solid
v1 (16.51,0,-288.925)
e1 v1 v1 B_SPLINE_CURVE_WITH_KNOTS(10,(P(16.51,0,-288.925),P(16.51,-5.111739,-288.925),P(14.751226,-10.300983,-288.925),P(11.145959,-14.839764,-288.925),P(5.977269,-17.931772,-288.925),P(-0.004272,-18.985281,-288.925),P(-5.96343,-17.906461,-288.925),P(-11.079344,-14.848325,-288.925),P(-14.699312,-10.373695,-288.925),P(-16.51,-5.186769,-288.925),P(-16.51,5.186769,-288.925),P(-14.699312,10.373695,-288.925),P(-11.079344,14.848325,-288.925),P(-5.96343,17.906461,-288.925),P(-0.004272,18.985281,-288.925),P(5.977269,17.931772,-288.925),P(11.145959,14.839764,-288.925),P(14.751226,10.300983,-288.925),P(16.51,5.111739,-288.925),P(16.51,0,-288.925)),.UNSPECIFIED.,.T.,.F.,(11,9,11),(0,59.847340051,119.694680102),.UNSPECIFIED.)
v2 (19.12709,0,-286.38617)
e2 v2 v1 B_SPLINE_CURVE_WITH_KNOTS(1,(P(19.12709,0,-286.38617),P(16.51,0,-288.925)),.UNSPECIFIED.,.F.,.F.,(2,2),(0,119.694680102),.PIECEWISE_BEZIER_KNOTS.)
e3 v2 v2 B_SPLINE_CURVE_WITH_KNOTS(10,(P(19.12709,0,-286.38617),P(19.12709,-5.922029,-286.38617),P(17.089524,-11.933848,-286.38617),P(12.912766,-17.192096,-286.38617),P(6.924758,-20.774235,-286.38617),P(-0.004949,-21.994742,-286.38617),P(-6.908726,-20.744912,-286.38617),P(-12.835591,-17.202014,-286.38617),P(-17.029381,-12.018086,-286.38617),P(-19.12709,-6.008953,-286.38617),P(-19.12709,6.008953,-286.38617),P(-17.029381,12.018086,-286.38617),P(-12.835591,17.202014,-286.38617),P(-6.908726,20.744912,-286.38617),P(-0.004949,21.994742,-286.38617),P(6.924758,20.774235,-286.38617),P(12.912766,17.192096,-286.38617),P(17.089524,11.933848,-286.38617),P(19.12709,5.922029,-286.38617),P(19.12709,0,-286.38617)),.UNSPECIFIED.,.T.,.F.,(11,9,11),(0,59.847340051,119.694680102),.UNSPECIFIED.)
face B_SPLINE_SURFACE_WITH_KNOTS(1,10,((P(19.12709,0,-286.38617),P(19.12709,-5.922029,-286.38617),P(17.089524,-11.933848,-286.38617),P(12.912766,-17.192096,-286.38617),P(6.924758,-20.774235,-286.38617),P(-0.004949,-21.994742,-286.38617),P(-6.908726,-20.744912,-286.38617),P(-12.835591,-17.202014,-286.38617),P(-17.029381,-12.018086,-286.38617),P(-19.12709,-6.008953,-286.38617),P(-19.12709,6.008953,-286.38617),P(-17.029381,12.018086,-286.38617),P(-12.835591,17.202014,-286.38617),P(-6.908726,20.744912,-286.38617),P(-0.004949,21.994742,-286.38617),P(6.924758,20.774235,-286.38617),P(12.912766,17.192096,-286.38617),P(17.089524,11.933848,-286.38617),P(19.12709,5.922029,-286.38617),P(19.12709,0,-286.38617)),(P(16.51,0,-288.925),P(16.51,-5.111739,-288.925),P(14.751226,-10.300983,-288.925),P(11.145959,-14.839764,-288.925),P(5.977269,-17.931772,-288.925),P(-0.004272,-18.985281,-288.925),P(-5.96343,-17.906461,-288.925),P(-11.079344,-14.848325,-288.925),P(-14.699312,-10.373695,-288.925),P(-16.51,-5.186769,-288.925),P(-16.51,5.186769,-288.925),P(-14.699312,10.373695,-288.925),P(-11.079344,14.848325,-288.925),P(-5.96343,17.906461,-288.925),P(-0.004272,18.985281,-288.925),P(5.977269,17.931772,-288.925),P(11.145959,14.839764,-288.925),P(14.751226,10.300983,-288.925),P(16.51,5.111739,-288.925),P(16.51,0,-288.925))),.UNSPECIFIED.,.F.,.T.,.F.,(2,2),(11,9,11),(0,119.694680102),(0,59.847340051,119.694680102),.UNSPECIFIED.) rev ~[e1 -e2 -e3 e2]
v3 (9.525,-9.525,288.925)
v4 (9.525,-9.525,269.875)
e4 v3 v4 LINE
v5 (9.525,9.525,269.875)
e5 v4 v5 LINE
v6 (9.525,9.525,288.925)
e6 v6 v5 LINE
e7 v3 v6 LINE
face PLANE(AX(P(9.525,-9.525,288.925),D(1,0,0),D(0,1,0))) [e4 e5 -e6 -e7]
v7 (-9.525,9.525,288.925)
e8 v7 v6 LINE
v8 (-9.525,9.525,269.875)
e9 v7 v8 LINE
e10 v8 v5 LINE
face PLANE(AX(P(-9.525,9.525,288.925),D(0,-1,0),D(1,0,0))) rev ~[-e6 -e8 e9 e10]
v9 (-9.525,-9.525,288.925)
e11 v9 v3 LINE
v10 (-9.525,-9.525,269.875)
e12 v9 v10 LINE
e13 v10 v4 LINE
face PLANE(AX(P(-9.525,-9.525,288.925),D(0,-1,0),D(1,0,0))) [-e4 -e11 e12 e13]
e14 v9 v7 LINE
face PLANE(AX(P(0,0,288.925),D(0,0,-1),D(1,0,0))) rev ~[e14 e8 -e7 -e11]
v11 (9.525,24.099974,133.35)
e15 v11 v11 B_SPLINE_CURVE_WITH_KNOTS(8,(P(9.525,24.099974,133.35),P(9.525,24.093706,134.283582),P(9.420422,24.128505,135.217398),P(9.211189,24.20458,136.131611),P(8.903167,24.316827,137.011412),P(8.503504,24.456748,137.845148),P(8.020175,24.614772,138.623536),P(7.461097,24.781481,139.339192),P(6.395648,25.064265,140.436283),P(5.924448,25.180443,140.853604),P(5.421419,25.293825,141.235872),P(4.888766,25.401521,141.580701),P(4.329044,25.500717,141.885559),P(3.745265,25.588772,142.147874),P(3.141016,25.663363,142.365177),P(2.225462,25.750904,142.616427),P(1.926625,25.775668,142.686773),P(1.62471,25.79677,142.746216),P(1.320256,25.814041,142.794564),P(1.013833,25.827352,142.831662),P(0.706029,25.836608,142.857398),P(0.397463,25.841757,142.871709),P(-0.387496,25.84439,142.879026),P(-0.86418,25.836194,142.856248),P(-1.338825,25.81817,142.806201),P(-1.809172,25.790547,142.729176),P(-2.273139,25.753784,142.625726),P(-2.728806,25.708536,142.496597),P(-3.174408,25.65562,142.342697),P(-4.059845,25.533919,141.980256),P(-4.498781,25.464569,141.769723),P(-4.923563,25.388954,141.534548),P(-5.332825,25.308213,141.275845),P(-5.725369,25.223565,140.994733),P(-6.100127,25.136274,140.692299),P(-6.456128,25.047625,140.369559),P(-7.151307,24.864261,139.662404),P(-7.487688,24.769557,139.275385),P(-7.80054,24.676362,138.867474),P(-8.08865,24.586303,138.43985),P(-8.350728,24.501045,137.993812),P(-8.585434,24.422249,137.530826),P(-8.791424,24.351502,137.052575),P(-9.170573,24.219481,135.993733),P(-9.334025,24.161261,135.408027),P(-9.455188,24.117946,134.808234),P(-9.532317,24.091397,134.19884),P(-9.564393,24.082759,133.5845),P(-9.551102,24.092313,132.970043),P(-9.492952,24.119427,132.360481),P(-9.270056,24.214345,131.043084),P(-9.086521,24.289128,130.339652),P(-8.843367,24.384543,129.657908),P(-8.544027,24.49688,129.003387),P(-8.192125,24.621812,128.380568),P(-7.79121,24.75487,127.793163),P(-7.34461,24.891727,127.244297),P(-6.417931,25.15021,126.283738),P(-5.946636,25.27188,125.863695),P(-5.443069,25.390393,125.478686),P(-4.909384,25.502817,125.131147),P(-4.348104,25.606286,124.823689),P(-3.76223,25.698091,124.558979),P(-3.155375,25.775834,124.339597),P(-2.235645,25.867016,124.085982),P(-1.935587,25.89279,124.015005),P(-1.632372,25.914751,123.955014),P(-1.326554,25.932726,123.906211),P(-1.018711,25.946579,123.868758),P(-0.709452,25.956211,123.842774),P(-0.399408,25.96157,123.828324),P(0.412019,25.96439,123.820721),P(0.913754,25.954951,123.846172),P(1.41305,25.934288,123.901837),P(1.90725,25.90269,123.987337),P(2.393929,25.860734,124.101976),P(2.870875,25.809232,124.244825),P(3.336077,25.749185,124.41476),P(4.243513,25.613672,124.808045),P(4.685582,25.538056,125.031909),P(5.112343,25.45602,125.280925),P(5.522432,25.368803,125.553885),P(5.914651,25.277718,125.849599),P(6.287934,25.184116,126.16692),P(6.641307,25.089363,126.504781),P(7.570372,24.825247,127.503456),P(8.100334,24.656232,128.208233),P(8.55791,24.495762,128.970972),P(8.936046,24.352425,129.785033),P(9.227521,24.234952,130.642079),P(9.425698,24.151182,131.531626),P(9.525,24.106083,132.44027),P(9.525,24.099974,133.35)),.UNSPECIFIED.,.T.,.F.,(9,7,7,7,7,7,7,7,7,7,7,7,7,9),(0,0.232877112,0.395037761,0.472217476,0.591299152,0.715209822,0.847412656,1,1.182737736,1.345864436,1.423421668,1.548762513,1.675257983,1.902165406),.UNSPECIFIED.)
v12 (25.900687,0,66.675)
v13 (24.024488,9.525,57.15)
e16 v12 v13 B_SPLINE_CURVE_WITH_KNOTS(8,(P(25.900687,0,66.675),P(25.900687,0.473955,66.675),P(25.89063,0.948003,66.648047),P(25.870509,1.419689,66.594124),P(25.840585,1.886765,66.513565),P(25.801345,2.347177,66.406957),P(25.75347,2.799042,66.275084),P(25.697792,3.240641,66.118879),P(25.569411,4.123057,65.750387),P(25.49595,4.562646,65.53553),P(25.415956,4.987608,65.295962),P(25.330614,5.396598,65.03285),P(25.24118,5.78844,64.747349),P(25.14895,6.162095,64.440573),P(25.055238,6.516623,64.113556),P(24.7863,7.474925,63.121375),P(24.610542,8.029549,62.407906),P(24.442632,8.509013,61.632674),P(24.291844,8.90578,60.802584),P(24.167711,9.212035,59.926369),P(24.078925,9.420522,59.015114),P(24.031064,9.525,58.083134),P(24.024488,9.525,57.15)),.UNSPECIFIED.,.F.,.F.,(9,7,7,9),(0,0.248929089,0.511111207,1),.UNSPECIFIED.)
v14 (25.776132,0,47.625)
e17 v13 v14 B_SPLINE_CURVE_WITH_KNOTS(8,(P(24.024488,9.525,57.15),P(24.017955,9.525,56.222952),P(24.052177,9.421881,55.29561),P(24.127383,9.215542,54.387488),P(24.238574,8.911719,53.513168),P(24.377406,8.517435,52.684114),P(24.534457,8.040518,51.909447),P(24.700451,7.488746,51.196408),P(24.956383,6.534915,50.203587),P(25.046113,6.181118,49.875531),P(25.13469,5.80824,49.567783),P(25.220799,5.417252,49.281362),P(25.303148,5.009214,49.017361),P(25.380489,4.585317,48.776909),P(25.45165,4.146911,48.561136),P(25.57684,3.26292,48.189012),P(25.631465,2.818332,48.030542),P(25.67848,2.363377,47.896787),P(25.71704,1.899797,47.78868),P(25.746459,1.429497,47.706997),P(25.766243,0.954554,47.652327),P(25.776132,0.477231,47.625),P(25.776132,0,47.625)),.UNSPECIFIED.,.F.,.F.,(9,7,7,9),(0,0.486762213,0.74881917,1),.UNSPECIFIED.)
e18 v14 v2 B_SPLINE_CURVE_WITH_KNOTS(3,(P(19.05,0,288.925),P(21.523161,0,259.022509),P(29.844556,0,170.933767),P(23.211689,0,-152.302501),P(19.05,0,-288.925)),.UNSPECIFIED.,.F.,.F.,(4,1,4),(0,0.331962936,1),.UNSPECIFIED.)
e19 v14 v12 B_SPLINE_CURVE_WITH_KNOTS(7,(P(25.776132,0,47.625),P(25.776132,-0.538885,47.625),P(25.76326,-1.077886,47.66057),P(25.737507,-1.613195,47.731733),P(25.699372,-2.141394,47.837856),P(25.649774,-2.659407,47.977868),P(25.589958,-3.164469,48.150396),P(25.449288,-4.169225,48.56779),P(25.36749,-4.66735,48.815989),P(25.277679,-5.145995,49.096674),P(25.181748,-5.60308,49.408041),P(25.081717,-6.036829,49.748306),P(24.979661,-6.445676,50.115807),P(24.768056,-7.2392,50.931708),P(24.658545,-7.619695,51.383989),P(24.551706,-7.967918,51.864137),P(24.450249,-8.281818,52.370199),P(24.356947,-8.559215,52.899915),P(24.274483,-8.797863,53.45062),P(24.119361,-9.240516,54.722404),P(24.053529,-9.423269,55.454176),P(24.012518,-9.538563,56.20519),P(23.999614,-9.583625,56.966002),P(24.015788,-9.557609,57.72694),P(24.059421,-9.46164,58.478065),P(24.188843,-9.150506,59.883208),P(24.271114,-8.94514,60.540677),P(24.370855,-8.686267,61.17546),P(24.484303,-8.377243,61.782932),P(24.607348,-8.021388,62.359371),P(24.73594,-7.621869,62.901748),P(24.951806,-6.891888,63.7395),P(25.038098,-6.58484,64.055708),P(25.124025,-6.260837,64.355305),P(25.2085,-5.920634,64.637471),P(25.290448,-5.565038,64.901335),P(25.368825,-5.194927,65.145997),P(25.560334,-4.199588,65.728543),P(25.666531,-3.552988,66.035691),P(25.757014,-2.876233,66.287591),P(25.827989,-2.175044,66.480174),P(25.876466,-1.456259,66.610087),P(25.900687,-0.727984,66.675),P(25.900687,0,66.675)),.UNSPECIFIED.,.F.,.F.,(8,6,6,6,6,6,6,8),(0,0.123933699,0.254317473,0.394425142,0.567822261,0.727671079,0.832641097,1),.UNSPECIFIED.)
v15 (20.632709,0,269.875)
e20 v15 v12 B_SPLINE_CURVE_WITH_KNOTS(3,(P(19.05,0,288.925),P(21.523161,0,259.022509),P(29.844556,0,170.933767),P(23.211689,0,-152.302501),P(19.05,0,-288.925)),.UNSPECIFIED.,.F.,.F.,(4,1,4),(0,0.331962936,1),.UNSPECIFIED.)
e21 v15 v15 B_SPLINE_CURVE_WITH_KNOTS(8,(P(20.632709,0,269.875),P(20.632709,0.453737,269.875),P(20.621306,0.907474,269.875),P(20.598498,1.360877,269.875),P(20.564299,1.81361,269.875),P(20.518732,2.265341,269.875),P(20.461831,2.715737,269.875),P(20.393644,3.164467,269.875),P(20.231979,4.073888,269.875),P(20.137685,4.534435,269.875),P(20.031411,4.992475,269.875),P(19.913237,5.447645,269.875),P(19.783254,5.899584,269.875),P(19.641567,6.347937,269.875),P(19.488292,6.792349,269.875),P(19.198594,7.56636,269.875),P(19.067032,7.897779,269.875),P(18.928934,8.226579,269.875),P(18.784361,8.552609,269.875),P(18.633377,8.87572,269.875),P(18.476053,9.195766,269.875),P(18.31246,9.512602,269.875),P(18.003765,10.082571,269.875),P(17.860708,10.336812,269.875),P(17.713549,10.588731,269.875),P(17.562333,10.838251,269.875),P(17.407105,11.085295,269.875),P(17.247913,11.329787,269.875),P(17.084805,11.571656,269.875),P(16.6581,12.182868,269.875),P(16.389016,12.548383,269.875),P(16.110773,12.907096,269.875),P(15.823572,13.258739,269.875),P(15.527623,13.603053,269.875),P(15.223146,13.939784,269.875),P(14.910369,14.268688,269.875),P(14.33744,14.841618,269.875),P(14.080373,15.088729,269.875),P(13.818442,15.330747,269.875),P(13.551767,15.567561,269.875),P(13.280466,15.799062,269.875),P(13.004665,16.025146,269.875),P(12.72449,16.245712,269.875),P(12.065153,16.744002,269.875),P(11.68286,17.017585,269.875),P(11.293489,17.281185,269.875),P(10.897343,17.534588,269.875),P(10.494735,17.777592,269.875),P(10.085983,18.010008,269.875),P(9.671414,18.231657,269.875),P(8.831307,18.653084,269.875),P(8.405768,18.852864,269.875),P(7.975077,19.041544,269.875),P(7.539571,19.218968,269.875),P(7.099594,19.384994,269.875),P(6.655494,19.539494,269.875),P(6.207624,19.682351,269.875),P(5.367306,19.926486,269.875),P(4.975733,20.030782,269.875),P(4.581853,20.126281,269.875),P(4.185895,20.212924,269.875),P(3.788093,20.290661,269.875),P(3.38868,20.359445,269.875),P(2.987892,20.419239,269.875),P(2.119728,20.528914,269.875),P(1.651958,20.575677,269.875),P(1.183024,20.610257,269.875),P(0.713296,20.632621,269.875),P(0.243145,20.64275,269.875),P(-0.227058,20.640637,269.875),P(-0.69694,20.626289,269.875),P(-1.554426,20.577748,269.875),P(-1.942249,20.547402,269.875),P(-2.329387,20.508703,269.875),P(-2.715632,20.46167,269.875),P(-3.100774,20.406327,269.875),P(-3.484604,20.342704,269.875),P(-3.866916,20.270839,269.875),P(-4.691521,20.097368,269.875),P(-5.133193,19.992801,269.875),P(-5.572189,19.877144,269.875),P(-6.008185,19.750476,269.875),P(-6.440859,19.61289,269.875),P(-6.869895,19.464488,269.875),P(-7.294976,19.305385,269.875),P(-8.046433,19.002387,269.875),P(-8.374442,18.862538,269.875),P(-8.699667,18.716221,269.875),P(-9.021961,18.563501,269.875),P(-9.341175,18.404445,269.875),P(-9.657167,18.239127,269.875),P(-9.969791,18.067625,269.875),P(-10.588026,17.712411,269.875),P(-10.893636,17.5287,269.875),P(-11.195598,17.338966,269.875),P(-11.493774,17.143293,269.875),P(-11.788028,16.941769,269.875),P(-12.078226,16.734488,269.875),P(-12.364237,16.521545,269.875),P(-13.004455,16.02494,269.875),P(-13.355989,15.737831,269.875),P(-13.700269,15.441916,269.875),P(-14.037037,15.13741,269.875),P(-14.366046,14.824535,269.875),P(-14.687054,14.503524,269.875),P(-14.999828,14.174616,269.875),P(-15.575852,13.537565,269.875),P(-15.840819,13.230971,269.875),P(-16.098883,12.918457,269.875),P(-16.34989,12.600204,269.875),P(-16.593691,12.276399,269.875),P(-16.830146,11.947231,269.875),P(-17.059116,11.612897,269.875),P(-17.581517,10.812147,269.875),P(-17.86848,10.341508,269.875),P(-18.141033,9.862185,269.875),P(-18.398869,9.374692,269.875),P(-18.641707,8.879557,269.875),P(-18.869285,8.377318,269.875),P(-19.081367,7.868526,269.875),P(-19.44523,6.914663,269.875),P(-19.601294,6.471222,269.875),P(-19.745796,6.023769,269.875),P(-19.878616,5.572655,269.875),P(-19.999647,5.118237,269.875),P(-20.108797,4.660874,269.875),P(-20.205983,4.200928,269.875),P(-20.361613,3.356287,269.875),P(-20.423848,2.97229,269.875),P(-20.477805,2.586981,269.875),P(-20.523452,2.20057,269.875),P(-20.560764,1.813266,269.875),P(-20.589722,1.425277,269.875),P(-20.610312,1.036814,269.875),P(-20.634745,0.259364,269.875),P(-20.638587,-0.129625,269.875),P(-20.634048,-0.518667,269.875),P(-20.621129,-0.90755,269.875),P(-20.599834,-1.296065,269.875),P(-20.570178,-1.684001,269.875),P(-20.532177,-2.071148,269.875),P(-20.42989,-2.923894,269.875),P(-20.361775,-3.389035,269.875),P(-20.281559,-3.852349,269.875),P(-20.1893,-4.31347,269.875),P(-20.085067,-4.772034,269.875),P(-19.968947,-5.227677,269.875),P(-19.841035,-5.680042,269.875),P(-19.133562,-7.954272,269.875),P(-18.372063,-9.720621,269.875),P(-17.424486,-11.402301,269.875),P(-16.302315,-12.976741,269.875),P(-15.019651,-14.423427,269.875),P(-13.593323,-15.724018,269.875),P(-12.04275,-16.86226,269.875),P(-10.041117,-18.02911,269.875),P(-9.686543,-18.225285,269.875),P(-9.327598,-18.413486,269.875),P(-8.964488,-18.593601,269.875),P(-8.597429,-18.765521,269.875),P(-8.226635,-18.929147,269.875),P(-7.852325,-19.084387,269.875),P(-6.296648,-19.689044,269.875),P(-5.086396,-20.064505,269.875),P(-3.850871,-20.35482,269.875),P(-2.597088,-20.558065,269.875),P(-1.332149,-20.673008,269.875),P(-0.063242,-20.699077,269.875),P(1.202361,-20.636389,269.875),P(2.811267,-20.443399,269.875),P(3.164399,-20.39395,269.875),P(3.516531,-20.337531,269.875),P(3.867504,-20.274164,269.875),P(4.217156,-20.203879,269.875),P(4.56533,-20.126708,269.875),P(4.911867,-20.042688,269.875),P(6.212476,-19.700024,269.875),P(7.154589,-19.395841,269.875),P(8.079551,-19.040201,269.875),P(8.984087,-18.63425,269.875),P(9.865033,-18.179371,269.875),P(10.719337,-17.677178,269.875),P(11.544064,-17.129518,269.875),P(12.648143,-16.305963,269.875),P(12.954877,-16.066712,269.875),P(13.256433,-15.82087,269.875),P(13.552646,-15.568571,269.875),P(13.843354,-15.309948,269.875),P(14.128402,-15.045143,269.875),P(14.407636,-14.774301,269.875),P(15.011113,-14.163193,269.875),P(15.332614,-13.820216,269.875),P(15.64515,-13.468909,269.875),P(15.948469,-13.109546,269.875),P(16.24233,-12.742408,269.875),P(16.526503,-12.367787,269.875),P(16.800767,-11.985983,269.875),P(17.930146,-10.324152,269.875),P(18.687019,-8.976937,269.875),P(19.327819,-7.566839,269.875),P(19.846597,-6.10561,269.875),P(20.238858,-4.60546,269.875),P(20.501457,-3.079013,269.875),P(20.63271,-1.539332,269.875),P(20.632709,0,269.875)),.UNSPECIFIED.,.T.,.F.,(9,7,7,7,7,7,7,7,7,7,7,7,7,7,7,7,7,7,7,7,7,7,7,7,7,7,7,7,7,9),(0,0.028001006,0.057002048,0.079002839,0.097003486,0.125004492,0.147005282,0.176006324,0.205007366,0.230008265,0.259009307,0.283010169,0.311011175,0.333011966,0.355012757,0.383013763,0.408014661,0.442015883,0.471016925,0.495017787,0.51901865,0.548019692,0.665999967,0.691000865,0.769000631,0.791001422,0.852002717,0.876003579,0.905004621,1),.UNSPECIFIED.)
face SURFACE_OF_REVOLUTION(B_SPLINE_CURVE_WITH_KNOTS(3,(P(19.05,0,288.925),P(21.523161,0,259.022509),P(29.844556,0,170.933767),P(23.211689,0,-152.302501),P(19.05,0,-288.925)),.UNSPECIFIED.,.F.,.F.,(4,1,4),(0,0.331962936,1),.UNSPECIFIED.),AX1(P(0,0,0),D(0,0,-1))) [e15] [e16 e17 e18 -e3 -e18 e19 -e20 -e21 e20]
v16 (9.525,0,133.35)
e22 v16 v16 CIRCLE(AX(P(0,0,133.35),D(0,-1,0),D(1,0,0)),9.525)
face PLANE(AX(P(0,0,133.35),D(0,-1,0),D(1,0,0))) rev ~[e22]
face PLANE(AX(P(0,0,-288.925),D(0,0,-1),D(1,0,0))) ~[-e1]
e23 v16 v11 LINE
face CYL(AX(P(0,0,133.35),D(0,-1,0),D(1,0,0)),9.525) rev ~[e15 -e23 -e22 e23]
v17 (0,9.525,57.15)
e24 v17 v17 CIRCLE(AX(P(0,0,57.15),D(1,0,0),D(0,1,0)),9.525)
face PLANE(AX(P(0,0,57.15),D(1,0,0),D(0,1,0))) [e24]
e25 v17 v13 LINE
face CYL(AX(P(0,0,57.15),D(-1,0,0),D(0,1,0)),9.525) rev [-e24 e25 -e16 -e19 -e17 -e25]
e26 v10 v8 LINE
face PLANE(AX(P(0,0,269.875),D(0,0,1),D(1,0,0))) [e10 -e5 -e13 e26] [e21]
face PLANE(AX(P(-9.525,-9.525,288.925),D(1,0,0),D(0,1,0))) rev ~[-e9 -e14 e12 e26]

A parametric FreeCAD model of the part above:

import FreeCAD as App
import Part
import Sketcher

V = App.Vector
Q = App.Units.Quantity


def edges_at(feature, points):
    """Names of the edges that pass closest to the given points."""
    edges = feature.Shape.Edges
    near = lambda p: min(range(len(edges)), key=lambda i: edges[i].distToShape(Part.Vertex(*p))[0])
    return sorted({f"Edge{near(p) + 1}" for p in points})


def add_polygon(sketch, points):
    """Adds a closed chain of lines whose ends are joined by coincident constraints."""
    first, n = sketch.GeometryCount, len(points)
    for a, b in zip(points, points[1:] + points[:1]):
        sketch.addGeometry(Part.LineSegment(App.Vector(*a, 0), App.Vector(*b, 0)), False)
    for i in range(n):
        sketch.addConstraint(Sketcher.Constraint("Coincident", first + i, 2, first + (i + 1) % n, 1))

doc = App.newDocument("Part")
body = doc.addObject("PartDesign::Body", "Body")

# Sketch on XZ plane
sketch1 = doc.addObject("Sketcher::SketchObject", "Sketch")
body.addObject(sketch1)
sketch1.AttachmentSupport = (doc.XZ_Plane, [""])
sketch1.MapMode = "FlatFace"
sketch1.addGeometry([
    Part.LineSegment(V(19.05, 288.925, 0), V(0, 288.925, 0)),
    Part.LineSegment(V(0, 288.925, 0), V(0, -288.925, 0)),
    Part.LineSegment(V(0, -288.925, 0), V(19.05, -288.925, 0)),
    Part.BSplineCurve([V(19.05, 288.925, 0), V(21.523161, 259.022509, 0), V(29.844556, 170.933767, 0), V(23.211689, -152.302501, 0), V(19.05, -288.925, 0)], [4, 1, 4], [0, 0.331962936, 1], False, 3, [1, 1, 1, 1, 1], False),
], False)
sketch1.addConstraint([
    Sketcher.Constraint("Block", 3),
    Sketcher.Constraint("Coincident", 0, 2, 1, 1),
    Sketcher.Constraint("Coincident", 1, 2, 2, 1),
    Sketcher.Constraint("Coincident", 2, 2, 3, 2),
    Sketcher.Constraint("Coincident", 3, 1, 0, 1),
    Sketcher.Constraint("Horizontal", 0),
    Sketcher.Constraint("Vertical", 1),
    Sketcher.Constraint("Horizontal", 2),
    Sketcher.Constraint("PointOnObject", 0, 2, -2),
])
revolution = doc.addObject("PartDesign::Revolution", "Revolution")
body.addObject(revolution)
revolution.Profile = sketch1
revolution.ReferenceAxis = (sketch1, ["V_Axis"])
revolution.Angle = 360

# Sketch on XY plane
sketch2 = doc.addObject("Sketcher::SketchObject", "Sketch001")
body.addObject(sketch2)
sketch2.AttachmentSupport = (doc.XY_Plane, [""])
sketch2.MapMode = "FlatFace"
sketch2.AttachmentOffset = App.Placement(V(0, 0, 11.375 * 25.4), App.Rotation())
add_polygon(sketch2, [(-25, 25), (-25, -25), (25, -25), (25, 25)])  # lines 0-3
add_polygon(sketch2, [(10, -10), (-10, -10), (-10, 10), (10, 10)])  # lines 4-7
sketch2.addConstraint([
    Sketcher.Constraint("Vertical", 0),
    Sketcher.Constraint("Horizontal", 1),
    Sketcher.Constraint("Vertical", 2),
    Sketcher.Constraint("Horizontal", 3),
    Sketcher.Constraint("Horizontal", 4),
    Sketcher.Constraint("Vertical", 5),
    Sketcher.Constraint("Horizontal", 6),
    Sketcher.Constraint("Vertical", 7),
    Sketcher.Constraint("Symmetric", 0, 2, 2, 2, -1, 1),
    Sketcher.Constraint("Symmetric", 4, 2, 6, 2, -1, 1),
    Sketcher.Constraint("Equal", 3, 0),
    Sketcher.Constraint("Equal", 6, 5),
    Sketcher.Constraint("DistanceX", 1, 1, 1, 2, Q("2 in")),
    Sketcher.Constraint("DistanceX", 4, 2, 4, 1, Q("0.75 in")),
])
pocket1 = doc.addObject("PartDesign::Pocket", "Pocket")
body.addObject(pocket1)
pocket1.Profile = sketch2
pocket1.Length = Q("0.75 in")
doc.recompute()

chamfer = doc.addObject("PartDesign::Chamfer", "Chamfer")
body.addObject(chamfer)
chamfer.Base = (pocket1, edges_at(pocket1, [(-19.05, 0, -288.925)]))
chamfer.Size = Q("0.1 in")

# Sketch on XZ plane
sketch3 = doc.addObject("Sketcher::SketchObject", "Sketch002")
body.addObject(sketch3)
sketch3.AttachmentSupport = (doc.XZ_Plane, [""])
sketch3.MapMode = "FlatFace"
sketch3.addGeometry(Part.Circle(V(0, 133, 0), V(0, 0, 1), 10), False)
sketch3.addConstraint([
    Sketcher.Constraint("PointOnObject", 0, 3, -2),
    Sketcher.Constraint("Diameter", 0, Q("0.75 in")),
    Sketcher.Constraint("DistanceY", -1, 1, 0, 3, Q("5.25 in")),
])
pocket2 = doc.addObject("PartDesign::Pocket", "Pocket001")
body.addObject(pocket2)
pocket2.Profile = sketch3
pocket2.Type = "ThroughAll"

# Sketch on YZ plane
sketch4 = doc.addObject("Sketcher::SketchObject", "Sketch003")
body.addObject(sketch4)
sketch4.AttachmentSupport = (doc.YZ_Plane, [""])
sketch4.MapMode = "FlatFace"
sketch4.addGeometry(Part.Circle(V(0, 57, 0), V(0, 0, 1), 10), False)
sketch4.addConstraint([
    Sketcher.Constraint("PointOnObject", 0, 3, -2),
    Sketcher.Constraint("Diameter", 0, Q("0.75 in")),
    Sketcher.Constraint("DistanceY", -1, 1, 0, 3, Q("2.25 in")),
])
pocket3 = doc.addObject("PartDesign::Pocket", "Pocket002")
body.addObject(pocket3)
pocket3.Profile = sketch4
pocket3.Type = "ThroughAll"
pocket3.Reversed = True

doc.recompute()
